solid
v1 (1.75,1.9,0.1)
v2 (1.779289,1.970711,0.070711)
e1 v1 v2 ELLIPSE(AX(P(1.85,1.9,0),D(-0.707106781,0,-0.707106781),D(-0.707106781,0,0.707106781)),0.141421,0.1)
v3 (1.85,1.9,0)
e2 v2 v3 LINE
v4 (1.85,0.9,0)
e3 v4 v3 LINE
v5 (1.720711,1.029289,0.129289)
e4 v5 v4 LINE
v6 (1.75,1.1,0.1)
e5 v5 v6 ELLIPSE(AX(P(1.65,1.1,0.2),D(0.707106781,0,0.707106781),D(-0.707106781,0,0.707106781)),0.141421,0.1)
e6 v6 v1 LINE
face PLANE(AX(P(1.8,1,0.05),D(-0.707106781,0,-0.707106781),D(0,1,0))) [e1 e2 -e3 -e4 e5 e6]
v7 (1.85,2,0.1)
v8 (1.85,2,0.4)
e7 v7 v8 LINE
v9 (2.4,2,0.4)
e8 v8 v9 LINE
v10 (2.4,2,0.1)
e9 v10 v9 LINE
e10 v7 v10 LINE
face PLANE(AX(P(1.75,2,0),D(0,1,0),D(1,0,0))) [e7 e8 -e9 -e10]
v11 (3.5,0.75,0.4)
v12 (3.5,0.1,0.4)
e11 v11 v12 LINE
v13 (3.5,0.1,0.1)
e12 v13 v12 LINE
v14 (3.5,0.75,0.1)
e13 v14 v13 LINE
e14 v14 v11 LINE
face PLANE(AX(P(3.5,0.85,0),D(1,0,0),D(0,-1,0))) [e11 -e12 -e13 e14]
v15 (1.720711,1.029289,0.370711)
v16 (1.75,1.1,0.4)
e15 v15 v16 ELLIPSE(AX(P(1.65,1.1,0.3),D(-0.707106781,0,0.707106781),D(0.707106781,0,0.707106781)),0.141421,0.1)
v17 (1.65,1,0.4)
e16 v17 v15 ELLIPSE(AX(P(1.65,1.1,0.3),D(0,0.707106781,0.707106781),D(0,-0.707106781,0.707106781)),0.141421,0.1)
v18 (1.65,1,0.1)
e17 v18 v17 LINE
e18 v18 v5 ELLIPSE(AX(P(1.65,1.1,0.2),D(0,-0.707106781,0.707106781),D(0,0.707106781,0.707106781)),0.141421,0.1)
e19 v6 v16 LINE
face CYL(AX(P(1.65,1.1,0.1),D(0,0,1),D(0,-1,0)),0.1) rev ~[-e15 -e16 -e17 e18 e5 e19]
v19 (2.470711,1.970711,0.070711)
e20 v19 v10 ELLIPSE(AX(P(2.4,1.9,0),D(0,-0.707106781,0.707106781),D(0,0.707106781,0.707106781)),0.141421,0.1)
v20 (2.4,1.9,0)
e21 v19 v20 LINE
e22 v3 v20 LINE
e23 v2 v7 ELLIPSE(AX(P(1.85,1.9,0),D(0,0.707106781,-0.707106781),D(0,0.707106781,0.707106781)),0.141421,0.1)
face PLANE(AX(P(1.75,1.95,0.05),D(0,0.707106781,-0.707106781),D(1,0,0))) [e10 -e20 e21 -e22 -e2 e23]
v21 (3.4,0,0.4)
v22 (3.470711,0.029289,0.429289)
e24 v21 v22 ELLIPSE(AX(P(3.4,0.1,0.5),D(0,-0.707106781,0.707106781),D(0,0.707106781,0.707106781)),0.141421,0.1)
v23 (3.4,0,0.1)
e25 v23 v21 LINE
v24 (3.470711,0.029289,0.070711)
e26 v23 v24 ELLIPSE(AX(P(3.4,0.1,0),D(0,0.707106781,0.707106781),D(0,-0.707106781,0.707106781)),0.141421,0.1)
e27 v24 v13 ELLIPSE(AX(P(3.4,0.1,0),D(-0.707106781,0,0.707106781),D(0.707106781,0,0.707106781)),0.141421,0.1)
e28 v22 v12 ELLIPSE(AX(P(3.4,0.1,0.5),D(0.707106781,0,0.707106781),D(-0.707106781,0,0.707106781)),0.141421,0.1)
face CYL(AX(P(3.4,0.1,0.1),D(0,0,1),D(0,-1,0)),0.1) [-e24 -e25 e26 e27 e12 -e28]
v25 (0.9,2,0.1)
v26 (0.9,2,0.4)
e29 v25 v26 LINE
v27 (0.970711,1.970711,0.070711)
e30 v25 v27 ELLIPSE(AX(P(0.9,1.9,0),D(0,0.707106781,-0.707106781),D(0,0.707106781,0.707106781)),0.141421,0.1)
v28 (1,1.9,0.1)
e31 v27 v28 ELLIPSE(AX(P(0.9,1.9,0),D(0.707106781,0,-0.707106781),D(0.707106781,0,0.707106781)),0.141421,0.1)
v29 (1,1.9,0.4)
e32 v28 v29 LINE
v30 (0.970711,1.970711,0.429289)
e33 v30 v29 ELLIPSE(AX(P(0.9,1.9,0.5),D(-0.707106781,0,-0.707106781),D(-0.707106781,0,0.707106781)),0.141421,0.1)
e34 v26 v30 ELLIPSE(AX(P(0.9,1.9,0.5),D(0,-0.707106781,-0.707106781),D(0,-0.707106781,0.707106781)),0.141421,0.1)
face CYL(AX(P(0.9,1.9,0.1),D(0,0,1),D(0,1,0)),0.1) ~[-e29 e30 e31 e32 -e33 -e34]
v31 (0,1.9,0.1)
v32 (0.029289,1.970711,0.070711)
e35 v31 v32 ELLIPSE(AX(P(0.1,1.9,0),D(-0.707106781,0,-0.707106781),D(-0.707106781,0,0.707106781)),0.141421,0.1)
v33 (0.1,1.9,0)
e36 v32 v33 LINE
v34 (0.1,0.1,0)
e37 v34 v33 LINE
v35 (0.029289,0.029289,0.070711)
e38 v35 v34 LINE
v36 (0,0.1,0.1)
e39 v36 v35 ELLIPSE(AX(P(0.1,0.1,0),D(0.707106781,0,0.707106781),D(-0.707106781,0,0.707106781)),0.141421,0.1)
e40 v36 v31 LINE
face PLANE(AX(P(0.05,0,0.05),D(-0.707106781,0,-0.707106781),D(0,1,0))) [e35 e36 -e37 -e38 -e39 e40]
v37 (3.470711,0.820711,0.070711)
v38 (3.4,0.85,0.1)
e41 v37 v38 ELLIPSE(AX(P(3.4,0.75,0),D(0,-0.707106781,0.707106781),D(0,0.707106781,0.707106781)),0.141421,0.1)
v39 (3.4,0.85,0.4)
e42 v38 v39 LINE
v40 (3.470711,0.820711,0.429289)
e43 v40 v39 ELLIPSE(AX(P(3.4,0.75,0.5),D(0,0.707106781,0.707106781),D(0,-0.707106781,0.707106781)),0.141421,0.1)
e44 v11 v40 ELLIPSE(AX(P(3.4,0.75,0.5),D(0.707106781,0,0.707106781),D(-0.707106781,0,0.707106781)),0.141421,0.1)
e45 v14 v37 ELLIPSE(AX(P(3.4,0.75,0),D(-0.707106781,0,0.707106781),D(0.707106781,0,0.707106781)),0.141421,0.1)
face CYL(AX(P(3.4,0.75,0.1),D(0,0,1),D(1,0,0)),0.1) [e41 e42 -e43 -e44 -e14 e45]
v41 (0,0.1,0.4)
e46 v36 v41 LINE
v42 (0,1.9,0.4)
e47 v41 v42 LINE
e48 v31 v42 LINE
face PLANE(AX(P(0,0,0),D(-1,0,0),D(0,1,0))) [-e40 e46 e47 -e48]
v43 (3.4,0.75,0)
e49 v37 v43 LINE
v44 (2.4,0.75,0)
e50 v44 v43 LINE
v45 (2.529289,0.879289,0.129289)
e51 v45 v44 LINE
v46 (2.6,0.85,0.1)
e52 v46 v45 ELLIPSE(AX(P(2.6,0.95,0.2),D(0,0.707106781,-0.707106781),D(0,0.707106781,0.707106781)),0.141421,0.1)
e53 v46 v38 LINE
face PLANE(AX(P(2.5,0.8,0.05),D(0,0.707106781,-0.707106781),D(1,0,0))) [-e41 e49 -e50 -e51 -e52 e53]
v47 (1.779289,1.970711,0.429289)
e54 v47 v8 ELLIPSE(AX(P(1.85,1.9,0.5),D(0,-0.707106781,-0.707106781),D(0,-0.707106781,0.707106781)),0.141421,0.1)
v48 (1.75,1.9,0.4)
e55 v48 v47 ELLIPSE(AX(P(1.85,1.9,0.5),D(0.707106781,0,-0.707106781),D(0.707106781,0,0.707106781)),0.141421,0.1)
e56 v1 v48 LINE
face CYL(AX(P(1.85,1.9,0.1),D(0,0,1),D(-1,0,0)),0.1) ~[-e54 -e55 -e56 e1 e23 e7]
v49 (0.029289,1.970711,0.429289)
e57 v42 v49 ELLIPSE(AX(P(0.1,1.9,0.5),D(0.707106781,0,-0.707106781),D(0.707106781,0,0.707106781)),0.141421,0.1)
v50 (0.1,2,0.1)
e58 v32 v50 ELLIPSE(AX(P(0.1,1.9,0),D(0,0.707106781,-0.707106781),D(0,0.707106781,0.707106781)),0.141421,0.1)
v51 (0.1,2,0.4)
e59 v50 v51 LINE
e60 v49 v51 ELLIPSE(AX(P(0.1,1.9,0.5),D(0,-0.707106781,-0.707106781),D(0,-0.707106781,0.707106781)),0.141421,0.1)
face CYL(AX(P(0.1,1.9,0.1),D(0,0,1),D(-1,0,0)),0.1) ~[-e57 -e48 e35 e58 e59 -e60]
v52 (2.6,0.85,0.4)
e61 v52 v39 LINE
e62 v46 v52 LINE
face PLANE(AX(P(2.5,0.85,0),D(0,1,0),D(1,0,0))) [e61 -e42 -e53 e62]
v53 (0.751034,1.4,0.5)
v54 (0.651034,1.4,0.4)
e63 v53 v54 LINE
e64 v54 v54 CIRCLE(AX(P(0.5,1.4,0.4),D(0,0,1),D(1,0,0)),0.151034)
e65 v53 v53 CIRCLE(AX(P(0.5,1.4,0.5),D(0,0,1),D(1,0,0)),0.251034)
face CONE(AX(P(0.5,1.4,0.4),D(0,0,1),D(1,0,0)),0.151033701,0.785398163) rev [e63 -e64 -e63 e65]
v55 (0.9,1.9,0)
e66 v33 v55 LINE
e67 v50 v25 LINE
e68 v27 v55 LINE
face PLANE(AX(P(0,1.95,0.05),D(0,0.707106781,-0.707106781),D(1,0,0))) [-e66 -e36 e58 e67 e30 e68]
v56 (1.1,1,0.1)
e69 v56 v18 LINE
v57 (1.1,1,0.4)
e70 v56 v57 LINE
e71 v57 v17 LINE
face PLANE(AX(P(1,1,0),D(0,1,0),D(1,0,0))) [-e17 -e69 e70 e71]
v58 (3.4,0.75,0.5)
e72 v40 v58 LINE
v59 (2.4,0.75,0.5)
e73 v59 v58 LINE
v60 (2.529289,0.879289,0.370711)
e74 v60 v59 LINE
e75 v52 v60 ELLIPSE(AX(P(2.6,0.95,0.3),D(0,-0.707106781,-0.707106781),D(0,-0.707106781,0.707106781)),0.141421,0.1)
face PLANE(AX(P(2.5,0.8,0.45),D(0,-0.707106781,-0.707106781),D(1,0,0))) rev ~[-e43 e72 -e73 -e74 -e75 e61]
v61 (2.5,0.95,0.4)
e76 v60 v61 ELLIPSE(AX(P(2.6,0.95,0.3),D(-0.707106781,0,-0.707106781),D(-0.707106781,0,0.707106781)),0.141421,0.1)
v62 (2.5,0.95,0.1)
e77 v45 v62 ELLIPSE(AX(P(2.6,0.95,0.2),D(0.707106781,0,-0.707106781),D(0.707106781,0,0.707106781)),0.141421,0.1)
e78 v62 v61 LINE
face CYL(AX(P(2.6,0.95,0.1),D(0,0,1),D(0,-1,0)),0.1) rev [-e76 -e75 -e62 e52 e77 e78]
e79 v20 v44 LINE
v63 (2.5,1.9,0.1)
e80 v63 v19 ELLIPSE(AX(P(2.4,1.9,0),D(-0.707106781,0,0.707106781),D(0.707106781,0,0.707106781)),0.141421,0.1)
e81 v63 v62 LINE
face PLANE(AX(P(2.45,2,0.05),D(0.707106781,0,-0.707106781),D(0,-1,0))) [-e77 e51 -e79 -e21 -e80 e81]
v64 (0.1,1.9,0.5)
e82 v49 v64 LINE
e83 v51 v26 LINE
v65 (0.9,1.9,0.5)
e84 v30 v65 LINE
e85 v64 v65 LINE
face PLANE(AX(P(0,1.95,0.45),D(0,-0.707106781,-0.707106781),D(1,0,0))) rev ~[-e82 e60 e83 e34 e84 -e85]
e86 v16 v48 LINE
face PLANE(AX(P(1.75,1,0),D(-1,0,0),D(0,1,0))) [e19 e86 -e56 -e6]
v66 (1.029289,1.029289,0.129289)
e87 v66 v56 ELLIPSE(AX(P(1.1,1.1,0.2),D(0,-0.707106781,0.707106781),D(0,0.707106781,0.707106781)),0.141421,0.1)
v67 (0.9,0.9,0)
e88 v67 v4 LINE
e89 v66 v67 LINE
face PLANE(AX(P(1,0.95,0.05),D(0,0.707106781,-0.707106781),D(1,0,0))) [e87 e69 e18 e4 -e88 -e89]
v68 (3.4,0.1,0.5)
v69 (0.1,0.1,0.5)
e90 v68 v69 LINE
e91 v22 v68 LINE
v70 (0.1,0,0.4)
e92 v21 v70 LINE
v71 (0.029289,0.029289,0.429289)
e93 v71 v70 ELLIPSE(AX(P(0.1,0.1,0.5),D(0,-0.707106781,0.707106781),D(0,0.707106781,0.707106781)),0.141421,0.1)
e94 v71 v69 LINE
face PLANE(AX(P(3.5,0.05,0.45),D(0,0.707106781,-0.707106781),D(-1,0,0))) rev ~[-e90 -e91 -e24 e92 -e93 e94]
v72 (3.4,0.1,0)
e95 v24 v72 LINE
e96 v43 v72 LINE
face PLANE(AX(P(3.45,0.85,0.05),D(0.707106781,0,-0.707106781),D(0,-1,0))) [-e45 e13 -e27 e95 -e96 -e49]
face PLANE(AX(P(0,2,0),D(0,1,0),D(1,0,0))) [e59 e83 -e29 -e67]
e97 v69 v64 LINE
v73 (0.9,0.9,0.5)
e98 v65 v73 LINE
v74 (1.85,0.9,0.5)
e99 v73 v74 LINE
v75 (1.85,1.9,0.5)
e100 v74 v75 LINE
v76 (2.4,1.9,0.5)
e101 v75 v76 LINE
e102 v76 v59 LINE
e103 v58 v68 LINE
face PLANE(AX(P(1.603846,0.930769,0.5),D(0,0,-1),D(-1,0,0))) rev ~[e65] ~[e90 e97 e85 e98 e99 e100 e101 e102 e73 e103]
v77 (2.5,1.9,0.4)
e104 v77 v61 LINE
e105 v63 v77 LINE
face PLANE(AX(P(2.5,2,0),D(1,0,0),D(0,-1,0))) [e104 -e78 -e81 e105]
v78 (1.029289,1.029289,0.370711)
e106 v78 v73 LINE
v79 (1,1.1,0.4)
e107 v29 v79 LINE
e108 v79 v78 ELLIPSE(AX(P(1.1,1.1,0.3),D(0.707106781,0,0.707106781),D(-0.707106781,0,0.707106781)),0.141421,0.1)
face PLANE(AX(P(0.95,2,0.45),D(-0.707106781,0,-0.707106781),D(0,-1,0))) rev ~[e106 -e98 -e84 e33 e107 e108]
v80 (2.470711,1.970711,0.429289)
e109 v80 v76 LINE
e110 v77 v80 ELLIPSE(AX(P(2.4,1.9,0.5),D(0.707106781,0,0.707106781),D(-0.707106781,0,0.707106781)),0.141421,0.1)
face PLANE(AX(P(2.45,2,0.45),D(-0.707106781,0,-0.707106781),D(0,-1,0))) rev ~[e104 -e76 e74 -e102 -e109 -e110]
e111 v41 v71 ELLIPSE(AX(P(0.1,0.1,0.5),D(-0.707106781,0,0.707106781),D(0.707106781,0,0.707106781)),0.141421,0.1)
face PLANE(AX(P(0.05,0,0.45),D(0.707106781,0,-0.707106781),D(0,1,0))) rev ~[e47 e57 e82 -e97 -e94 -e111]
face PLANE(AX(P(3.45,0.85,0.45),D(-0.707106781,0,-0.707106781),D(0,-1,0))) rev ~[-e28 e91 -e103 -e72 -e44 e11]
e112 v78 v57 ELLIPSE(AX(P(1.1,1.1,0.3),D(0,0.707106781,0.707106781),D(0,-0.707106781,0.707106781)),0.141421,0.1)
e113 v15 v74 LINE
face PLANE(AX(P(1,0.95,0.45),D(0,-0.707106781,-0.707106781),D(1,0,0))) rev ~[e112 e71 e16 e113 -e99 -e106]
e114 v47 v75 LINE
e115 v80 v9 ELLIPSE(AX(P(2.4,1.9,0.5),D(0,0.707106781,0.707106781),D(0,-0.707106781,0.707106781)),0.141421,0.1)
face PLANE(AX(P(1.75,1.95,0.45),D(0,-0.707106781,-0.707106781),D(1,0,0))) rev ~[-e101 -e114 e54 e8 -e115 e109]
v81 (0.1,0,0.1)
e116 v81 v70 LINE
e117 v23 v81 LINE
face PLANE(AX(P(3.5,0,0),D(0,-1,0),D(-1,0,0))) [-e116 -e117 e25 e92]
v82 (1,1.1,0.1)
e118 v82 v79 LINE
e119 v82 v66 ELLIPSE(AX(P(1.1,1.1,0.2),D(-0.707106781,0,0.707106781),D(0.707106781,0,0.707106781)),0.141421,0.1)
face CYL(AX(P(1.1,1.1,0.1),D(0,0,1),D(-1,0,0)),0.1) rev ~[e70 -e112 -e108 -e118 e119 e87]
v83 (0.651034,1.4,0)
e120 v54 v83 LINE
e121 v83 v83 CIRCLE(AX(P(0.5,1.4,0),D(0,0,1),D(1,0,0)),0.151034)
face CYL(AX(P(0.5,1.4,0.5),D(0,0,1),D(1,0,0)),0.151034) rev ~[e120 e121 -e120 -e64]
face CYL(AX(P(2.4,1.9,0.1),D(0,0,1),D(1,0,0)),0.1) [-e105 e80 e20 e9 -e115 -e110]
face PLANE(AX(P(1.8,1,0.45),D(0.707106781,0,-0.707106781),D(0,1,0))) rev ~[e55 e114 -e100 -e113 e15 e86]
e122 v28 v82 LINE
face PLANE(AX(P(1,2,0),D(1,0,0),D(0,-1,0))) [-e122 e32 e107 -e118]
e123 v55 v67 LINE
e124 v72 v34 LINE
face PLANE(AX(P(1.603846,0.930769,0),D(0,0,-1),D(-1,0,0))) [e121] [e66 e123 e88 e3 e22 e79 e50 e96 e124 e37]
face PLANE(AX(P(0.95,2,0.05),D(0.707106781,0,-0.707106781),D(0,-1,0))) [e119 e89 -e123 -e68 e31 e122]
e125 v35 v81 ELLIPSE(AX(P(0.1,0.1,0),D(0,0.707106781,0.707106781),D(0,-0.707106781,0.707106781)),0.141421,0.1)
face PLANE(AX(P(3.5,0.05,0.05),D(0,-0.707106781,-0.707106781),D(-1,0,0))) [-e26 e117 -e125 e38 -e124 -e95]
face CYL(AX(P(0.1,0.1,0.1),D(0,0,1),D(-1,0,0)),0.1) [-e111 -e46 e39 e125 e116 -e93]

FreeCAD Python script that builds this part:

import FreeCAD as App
import Part
import Sketcher

V = App.Vector
Q = App.Units.Quantity


def edges_at(feature, points):
    """Names of the edges that pass closest to the given points."""
    edges = feature.Shape.Edges
    near = lambda p: min(range(len(edges)), key=lambda i: edges[i].distToShape(Part.Vertex(*p))[0])
    return sorted({f"Edge{near(p) + 1}" for p in points})

doc = App.newDocument("Part")
body = doc.addObject("PartDesign::Body", "Body")

# Sketch on XY plane
sketch1 = doc.addObject("Sketcher::SketchObject", "Sketch")
body.addObject(sketch1)
sketch1.AttachmentSupport = (doc.XY_Plane, [""])
sketch1.MapMode = "FlatFace"
sketch1.addGeometry(Part.LineSegment(V(0, 2, 0), V(0, 0, 0)), False)
sketch1.addGeometry(Part.LineSegment(V(0, 0, 0), V(3.5, 0, 0)), False)
sketch1.addGeometry(Part.LineSegment(V(3.5, 0, 0), V(3.5, 0.85, 0)), False)
sketch1.addGeometry(Part.LineSegment(V(3.5, 0.85, 0), V(2.5, 0.85, 0)), False)
sketch1.addGeometry(Part.LineSegment(V(2.5, 0.85, 0), V(2.5, 2, 0)), False)
sketch1.addGeometry(Part.LineSegment(V(2.5, 2, 0), V(1.75, 2, 0)), False)
sketch1.addGeometry(Part.LineSegment(V(1.75, 2, 0), V(1.75, 1, 0)), False)
sketch1.addGeometry(Part.LineSegment(V(1.75, 1, 0), V(1, 1, 0)), False)
sketch1.addGeometry(Part.LineSegment(V(1, 1, 0), V(1, 2, 0)), False)
sketch1.addGeometry(Part.LineSegment(V(1, 2, 0), V(0, 2, 0)), False)
sketch1.addConstraint(Sketcher.Constraint("Coincident", 0, 2, 1, 1))
sketch1.addConstraint(Sketcher.Constraint("Coincident", 1, 2, 2, 1))
sketch1.addConstraint(Sketcher.Constraint("Coincident", 2, 2, 3, 1))
sketch1.addConstraint(Sketcher.Constraint("Coincident", 3, 2, 4, 1))
sketch1.addConstraint(Sketcher.Constraint("Coincident", 4, 2, 5, 1))
sketch1.addConstraint(Sketcher.Constraint("Coincident", 5, 2, 6, 1))
sketch1.addConstraint(Sketcher.Constraint("Coincident", 6, 2, 7, 1))
sketch1.addConstraint(Sketcher.Constraint("Coincident", 7, 2, 8, 1))
sketch1.addConstraint(Sketcher.Constraint("Coincident", 8, 2, 9, 1))
sketch1.addConstraint(Sketcher.Constraint("Coincident", 9, 2, 0, 1))
sketch1.addConstraint(Sketcher.Constraint("Vertical", 0))
sketch1.addConstraint(Sketcher.Constraint("Horizontal", 1))
sketch1.addConstraint(Sketcher.Constraint("Vertical", 2))
sketch1.addConstraint(Sketcher.Constraint("Horizontal", 3))
sketch1.addConstraint(Sketcher.Constraint("Vertical", 4))
sketch1.addConstraint(Sketcher.Constraint("Horizontal", 5))
sketch1.addConstraint(Sketcher.Constraint("Vertical", 6))
sketch1.addConstraint(Sketcher.Constraint("Horizontal", 7))
sketch1.addConstraint(Sketcher.Constraint("Vertical", 8))
sketch1.addConstraint(Sketcher.Constraint("Horizontal", 9))
sketch1.addConstraint(Sketcher.Constraint("Coincident", 0, 2, -1, 1))
sketch1.addConstraint(Sketcher.Constraint("Horizontal", 5, 2, 8, 2))
sketch1.addConstraint(Sketcher.Constraint("Equal", 5, 7))
sketch1.addConstraint(Sketcher.Constraint("Equal", 3, 9))
sketch1.addConstraint(Sketcher.Constraint("Equal", 9, 6))
sketch1.addConstraint(Sketcher.Constraint("DistanceX", 3, 2, 3, 1, Q("1 mm")))
sketch1.addConstraint(Sketcher.Constraint("DistanceY", 0, 2, 0, 1, Q("2 mm")))
sketch1.addConstraint(Sketcher.Constraint("DistanceX", 1, 1, 1, 2, Q("3.5 mm")))
sketch1.addConstraint(Sketcher.Constraint("DistanceY", 2, 1, 2, 2, Q("0.85 mm")))
pad1 = doc.addObject("PartDesign::Pad", "Pad")
body.addObject(pad1)
pad1.Profile = sketch1
pad1.Length = 0.5
doc.recompute()

chamfer = doc.addObject("PartDesign::Chamfer", "Chamfer")
body.addObject(chamfer)
chamfer.Base = (pad1, edges_at(pad1, [
    (0, 1, 0),
    (0.5, 2, 0),
    (1, 1.5, 0),
    (1.375, 1, 0),
    (1.75, 1.5, 0),
    (2.125, 2, 0),
    (2.5, 1.425, 0),
    (3, 0.85, 0.5),
    (3, 0.85, 0),
    (3.5, 0.425, 0),
    (1.75, 0, 0),
    (2.5, 1.425, 0.5),
    (2.125, 2, 0.5),
    (1.75, 1.5, 0.5),
    (1.375, 1, 0.5),
    (1, 1.5, 0.5),
    (0.5, 2, 0.5),
    (0, 1, 0.5),
    (1.75, 0, 0.5),
    (3.5, 0.425, 0.5),
]))
chamfer.Size = 0.1
doc.recompute()

fillet = doc.addObject("PartDesign::Fillet", "Fillet")
body.addObject(fillet)
fillet.Base = (chamfer, edges_at(chamfer, [
    (3.5, 0.85, 0.25),
    (3.5, 0, 0.25),
    (2.5, 0.85, 0.25),
    (2.5, 2, 0.25),
    (1.75, 2, 0.25),
    (1.75, 1, 0.25),
    (1, 1, 0.25),
    (1, 2, 0.25),
    (0, 2, 0.25),
    (0, 0, 0.25),
]))
fillet.Radius = 0.1

# Sketch on XY plane
sketch2 = doc.addObject("Sketcher::SketchObject", "Sketch001")
body.addObject(sketch2)
sketch2.AttachmentSupport = (doc.XY_Plane, [""])
sketch2.MapMode = "FlatFace"
sketch2.AttachmentOffset = App.Placement(V(0, 0, 0.5), App.Rotation())
sketch2.addGeometry(Part.Circle(V(0.5, 1.4, 0), V(0, 0, 1), 0.151034), False)
sketch2.addConstraint(Sketcher.Constraint("DistanceX", -1, 1, 0, 3, Q("0.5 mm")))
sketch2.addConstraint(Sketcher.Constraint("DistanceY", -1, 1, 0, 3, Q("1.4 mm")))
sketch2.addConstraint(Sketcher.Constraint("Diameter", 0, Q("0.302067 mm")))
pocket1 = doc.addObject("PartDesign::Pocket", "Pocket")
body.addObject(pocket1)
pocket1.Profile = sketch2
pocket1.Type = "ThroughAll"
doc.recompute()

chamfer2 = doc.addObject("PartDesign::Chamfer", "Chamfer001")
body.addObject(chamfer2)
chamfer2.Base = (pocket1, edges_at(pocket1, [(0.349, 1.4, 0.5)]))
chamfer2.Size = 0.1

doc.recompute()
